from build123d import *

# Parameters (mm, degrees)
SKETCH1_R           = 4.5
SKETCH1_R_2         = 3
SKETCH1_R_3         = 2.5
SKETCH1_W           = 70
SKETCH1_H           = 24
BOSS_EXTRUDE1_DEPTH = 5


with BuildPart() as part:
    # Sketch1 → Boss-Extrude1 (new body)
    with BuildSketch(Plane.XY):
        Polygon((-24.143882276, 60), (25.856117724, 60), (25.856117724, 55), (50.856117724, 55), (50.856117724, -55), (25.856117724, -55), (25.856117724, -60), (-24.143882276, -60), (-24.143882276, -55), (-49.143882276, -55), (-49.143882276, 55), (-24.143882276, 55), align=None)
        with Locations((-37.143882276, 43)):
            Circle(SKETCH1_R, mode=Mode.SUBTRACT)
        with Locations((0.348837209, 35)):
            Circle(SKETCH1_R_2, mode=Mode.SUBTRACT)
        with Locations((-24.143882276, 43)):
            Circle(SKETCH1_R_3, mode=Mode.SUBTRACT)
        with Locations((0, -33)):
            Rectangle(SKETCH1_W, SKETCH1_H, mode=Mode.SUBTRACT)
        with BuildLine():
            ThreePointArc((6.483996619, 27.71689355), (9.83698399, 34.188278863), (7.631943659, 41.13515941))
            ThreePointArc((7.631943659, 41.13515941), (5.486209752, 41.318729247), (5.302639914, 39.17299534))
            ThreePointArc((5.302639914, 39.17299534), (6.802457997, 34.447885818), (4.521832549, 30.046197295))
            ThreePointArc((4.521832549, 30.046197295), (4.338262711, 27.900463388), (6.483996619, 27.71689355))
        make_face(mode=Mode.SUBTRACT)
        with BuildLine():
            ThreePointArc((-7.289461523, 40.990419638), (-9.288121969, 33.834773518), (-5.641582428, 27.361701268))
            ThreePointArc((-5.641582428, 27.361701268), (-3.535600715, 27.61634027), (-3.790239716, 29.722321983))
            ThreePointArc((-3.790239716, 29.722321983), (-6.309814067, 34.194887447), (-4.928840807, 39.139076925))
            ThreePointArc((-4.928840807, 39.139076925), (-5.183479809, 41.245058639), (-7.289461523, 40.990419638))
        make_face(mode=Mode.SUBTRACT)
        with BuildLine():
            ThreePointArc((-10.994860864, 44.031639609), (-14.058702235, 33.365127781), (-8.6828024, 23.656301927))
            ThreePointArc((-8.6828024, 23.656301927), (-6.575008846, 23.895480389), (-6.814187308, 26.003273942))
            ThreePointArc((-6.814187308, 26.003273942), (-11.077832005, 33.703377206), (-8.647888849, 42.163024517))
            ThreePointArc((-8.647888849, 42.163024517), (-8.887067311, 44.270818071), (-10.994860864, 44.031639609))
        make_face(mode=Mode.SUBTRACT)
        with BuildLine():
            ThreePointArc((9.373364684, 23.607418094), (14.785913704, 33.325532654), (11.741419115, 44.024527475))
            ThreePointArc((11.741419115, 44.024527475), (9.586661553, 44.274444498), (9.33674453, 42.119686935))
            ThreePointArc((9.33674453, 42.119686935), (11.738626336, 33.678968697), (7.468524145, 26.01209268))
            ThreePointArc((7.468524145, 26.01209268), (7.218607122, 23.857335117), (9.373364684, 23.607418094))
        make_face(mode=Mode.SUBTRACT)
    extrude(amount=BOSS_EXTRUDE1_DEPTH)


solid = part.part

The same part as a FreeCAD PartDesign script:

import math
import FreeCAD as App
import Part
import Sketcher
from FreeCAD import Vector

doc = App.newDocument("Part")
params = doc.addObject("Spreadsheet::Sheet", "Params")
for row, (alias, value) in enumerate([
    ("sketch1_diameter", "6 mm"),
    ("sketch1_diameter2", "5 mm"),
    ("sketch1_diameter3", "9 mm"),
    ("sketch1_radius", "1.5 mm"),
    ("sketch1_radius2", "11.5 mm"),
    ("pad1_length", "5 mm"),
], start=1):
    params.set(f"A{row}", alias)
    params.set(f"B{row}", "=" + value)
    params.setAlias(f"B{row}", alias)

body = doc.addObject("PartDesign::Body", "Body")

# Sketch on XY plane
sketch1 = body.newObject("Sketcher::SketchObject", "Sketch")
sketch1.AttachmentSupport = (doc.getObject("XY_Plane"), [""])
sketch1.MapMode = "FlatFace"
sketch1.addGeometry(Part.LineSegment(Vector(25.856118, 60, 0), Vector(-24.143882, 60, 0)), False)
sketch1.addGeometry(Part.LineSegment(Vector(-24.143882, 60, 0), Vector(-24.143882, 55, 0)), False)
sketch1.addGeometry(Part.LineSegment(Vector(-24.143882, 55, 0), Vector(-49.143882, 55, 0)), False)
sketch1.addGeometry(Part.LineSegment(Vector(-49.143882, 55, 0), Vector(-49.143882, -55, 0)), False)
sketch1.addGeometry(Part.LineSegment(Vector(-49.143882, -55, 0), Vector(-24.143882, -55, 0)), False)
sketch1.addGeometry(Part.LineSegment(Vector(-24.143882, -55, 0), Vector(-24.143882, -60, 0)), False)
sketch1.addGeometry(Part.LineSegment(Vector(-24.143882, -60, 0), Vector(25.856118, -60, 0)), False)
sketch1.addGeometry(Part.LineSegment(Vector(25.856118, -60, 0), Vector(25.856118, -55, 0)), False)
sketch1.addGeometry(Part.LineSegment(Vector(25.856118, -55, 0), Vector(50.856118, -55, 0)), False)
sketch1.addGeometry(Part.LineSegment(Vector(50.856118, -55, 0), Vector(50.856118, 55, 0)), False)
sketch1.addGeometry(Part.LineSegment(Vector(50.856118, 55, 0), Vector(25.856118, 55, 0)), False)
sketch1.addGeometry(Part.LineSegment(Vector(25.856118, 55, 0), Vector(25.856118, 60, 0)), False)
sketch1.addGeometry(Part.LineSegment(Vector(-35, -45, 0), Vector(-35, -21, 0)), False)
sketch1.addGeometry(Part.LineSegment(Vector(-35, -21, 0), Vector(35, -21, 0)), False)
sketch1.addGeometry(Part.LineSegment(Vector(35, -21, 0), Vector(35, -45, 0)), False)
sketch1.addGeometry(Part.LineSegment(Vector(35, -45, 0), Vector(-35, -45, 0)), False)
sketch1.addGeometry(Part.ArcOfCircle(Part.Circle(Vector(8.420944, 24.809755, 0), Vector(0, 0, 1), 1.533858), math.radians(128.384177), math.radians(308.384177)), False)
sketch1.addGeometry(Part.ArcOfCircle(Part.Circle(Vector(0.348837, 35, 0), Vector(0, 0, 1), 11.466142), math.radians(-51.615823), math.radians(38.384177)), False)
sketch1.addGeometry(Part.ArcOfCircle(Part.Circle(Vector(10.539082, 43.072107, 0), Vector(0, 0, 1), 1.533858), math.radians(38.384177), math.radians(218.384177)), False)
sketch1.addGeometry(Part.ArcOfCircle(Part.Circle(Vector(0.348837, 35, 0), Vector(0, 0, 1), 14.533858), math.radians(-51.615823), math.radians(38.384177)), False)
sketch1.addGeometry(Part.ArcOfCircle(Part.Circle(Vector(5.502915, 28.881545, 0), Vector(0, 0, 1), 1.522805), math.radians(130.110191), math.radians(310.110191)), False)
sketch1.addGeometry(Part.ArcOfCircle(Part.Circle(Vector(0.348837, 35, 0), Vector(0, 0, 1), 6.477195), math.radians(-49.889809), math.radians(40.110191)), False)
sketch1.addGeometry(Part.ArcOfCircle(Part.Circle(Vector(6.467292, 40.154077, 0), Vector(0, 0, 1), 1.522805), math.radians(40.110191), math.radians(220.110191)), False)
sketch1.addGeometry(Part.ArcOfCircle(Part.Circle(Vector(0.348837, 35, 0), Vector(0, 0, 1), 9.522805), math.radians(-49.889809), math.radians(40.110191)), False)
sketch1.addGeometry(Part.Circle(Vector(0.348837, 35, 0), Vector(0, 0, 1), 3), False)
sketch1.addGeometry(Part.ArcOfCircle(Part.Circle(Vector(-6.109151, 40.064748, 0), Vector(0, 0, 1), 1.5), math.radians(-38.105706), math.radians(141.894294)), False)
sketch1.addGeometry(Part.ArcOfCircle(Part.Circle(Vector(0.348837, 35, 0), Vector(0, 0, 1), 6.707149), math.radians(141.894294), math.radians(231.894294)), False)
sketch1.addGeometry(Part.ArcOfCircle(Part.Circle(Vector(-4.715911, 28.542012, 0), Vector(0, 0, 1), 1.5), math.radians(-128.105706), math.radians(51.894294)), False)
sketch1.addGeometry(Part.ArcOfCircle(Part.Circle(Vector(0.348837, 35, 0), Vector(0, 0, 1), 9.707149), math.radians(141.894294), math.radians(231.894294)), False)
sketch1.addGeometry(Part.ArcOfCircle(Part.Circle(Vector(-9.821375, 43.097332, 0), Vector(0, 0, 1), 1.5), math.radians(-38.526146), math.radians(141.473854)), False)
sketch1.addGeometry(Part.ArcOfCircle(Part.Circle(Vector(0.348837, 35, 0), Vector(0, 0, 1), 11.5), math.radians(141.473854), math.radians(231.473854)), False)
sketch1.addGeometry(Part.ArcOfCircle(Part.Circle(Vector(-7.748495, 24.829788, 0), Vector(0, 0, 1), 1.5), math.radians(-128.526146), math.radians(51.473854)), False)
sketch1.addGeometry(Part.ArcOfCircle(Part.Circle(Vector(0.348837, 35, 0), Vector(0, 0, 1), 14.5), math.radians(141.473854), math.radians(231.473854)), False)
sketch1.addGeometry(Part.Circle(Vector(-24.143882, 43, 0), Vector(0, 0, 1), 2.5), False)
sketch1.addGeometry(Part.Circle(Vector(-37.143882, 43, 0), Vector(0, 0, 1), 4.5), False)
sketch1.addConstraint(Sketcher.Constraint("Coincident", 0, 2, 1, 1))
sketch1.addConstraint(Sketcher.Constraint("Coincident", 1, 2, 2, 1))
sketch1.addConstraint(Sketcher.Constraint("Coincident", 2, 2, 3, 1))
sketch1.addConstraint(Sketcher.Constraint("Coincident", 3, 2, 4, 1))
sketch1.addConstraint(Sketcher.Constraint("Coincident", 4, 2, 5, 1))
sketch1.addConstraint(Sketcher.Constraint("Coincident", 5, 2, 6, 1))
sketch1.addConstraint(Sketcher.Constraint("Coincident", 6, 2, 7, 1))
sketch1.addConstraint(Sketcher.Constraint("Coincident", 7, 2, 8, 1))
sketch1.addConstraint(Sketcher.Constraint("Coincident", 8, 2, 9, 1))
sketch1.addConstraint(Sketcher.Constraint("Coincident", 9, 2, 10, 1))
sketch1.addConstraint(Sketcher.Constraint("Coincident", 10, 2, 11, 1))
sketch1.addConstraint(Sketcher.Constraint("Coincident", 11, 2, 0, 1))
sketch1.addConstraint(Sketcher.Constraint("Coincident", 12, 2, 13, 1))
sketch1.addConstraint(Sketcher.Constraint("Coincident", 13, 2, 14, 1))
sketch1.addConstraint(Sketcher.Constraint("Coincident", 14, 2, 15, 1))
sketch1.addConstraint(Sketcher.Constraint("Coincident", 15, 2, 12, 1))
sketch1.addConstraint(Sketcher.Constraint("Tangent", 16, 1, 17, 1))
sketch1.addConstraint(Sketcher.Constraint("Tangent", 17, 2, 18, 2))
sketch1.addConstraint(Sketcher.Constraint("Tangent", 18, 1, 19, 2))
sketch1.addConstraint(Sketcher.Constraint("Tangent", 19, 1, 16, 2))
sketch1.addConstraint(Sketcher.Constraint("Tangent", 20, 1, 21, 1))
sketch1.addConstraint(Sketcher.Constraint("Tangent", 21, 2, 22, 2))
sketch1.addConstraint(Sketcher.Constraint("Tangent", 22, 1, 23, 2))
sketch1.addConstraint(Sketcher.Constraint("Tangent", 23, 1, 20, 2))
sketch1.addConstraint(Sketcher.Constraint("Tangent", 25, 1, 26, 1))
sketch1.addConstraint(Sketcher.Constraint("Tangent", 26, 2, 27, 2))
sketch1.addConstraint(Sketcher.Constraint("Tangent", 27, 1, 28, 2))
sketch1.addConstraint(Sketcher.Constraint("Tangent", 28, 1, 25, 2))
sketch1.addConstraint(Sketcher.Constraint("Tangent", 29, 1, 30, 1))
sketch1.addConstraint(Sketcher.Constraint("Tangent", 30, 2, 31, 2))
sketch1.addConstraint(Sketcher.Constraint("Tangent", 31, 1, 32, 2))
sketch1.addConstraint(Sketcher.Constraint("Tangent", 32, 1, 29, 2))
sketch1.addConstraint(Sketcher.Constraint("Horizontal", 0))
sketch1.addConstraint(Sketcher.Constraint("Vertical", 1))
sketch1.addConstraint(Sketcher.Constraint("Horizontal", 2))
sketch1.addConstraint(Sketcher.Constraint("Vertical", 3))
sketch1.addConstraint(Sketcher.Constraint("Horizontal", 4))
sketch1.addConstraint(Sketcher.Constraint("Vertical", 5))
sketch1.addConstraint(Sketcher.Constraint("Horizontal", 6))
sketch1.addConstraint(Sketcher.Constraint("Vertical", 7))
sketch1.addConstraint(Sketcher.Constraint("Horizontal", 8))
sketch1.addConstraint(Sketcher.Constraint("Vertical", 9))
sketch1.addConstraint(Sketcher.Constraint("Horizontal", 10))
sketch1.addConstraint(Sketcher.Constraint("Vertical", 11))
sketch1.addConstraint(Sketcher.Constraint("Vertical", 12))
sketch1.addConstraint(Sketcher.Constraint("Horizontal", 13))
sketch1.addConstraint(Sketcher.Constraint("Vertical", 14))
sketch1.addConstraint(Sketcher.Constraint("Horizontal", 15))
sketch1.addConstraint(Sketcher.Constraint("Coincident", 19, 3, 17, 3))
sketch1.addConstraint(Sketcher.Constraint("Coincident", 21, 3, 17, 3))
sketch1.addConstraint(Sketcher.Constraint("Coincident", 23, 3, 17, 3))
sketch1.addConstraint(Sketcher.Constraint("Coincident", 24, 3, 17, 3))
sketch1.addConstraint(Sketcher.Constraint("Coincident", 26, 3, 17, 3))
sketch1.addConstraint(Sketcher.Constraint("Coincident", 28, 3, 17, 3))
sketch1.addConstraint(Sketcher.Constraint("Coincident", 30, 3, 17, 3))
sketch1.addConstraint(Sketcher.Constraint("Coincident", 32, 3, 17, 3))
sketch1.addConstraint(Sketcher.Constraint("Equal", 27, 29))
sketch1.addConstraint(Sketcher.Constraint("Symmetric", 1, 2, 4, 2, -1))
sketch1.addConstraint(Sketcher.Constraint("Symmetric", 7, 2, 10, 2, -1))
sketch1.addConstraint(Sketcher.Constraint("Horizontal", 33, 3, 34, 3))
sketch1.addConstraint(Sketcher.Constraint("Horizontal", 4, 2, 7, 2))
sketch1.addConstraint(Sketcher.Constraint("Vertical", 33, 3, 0, 2))
sketch1.addConstraint(Sketcher.Constraint("Equal", 4, 8))
sketch1.addConstraint(Sketcher.Constraint("Equal", 1, 5))
sketch1.addConstraint(Sketcher.Constraint("Diameter", 24, 6.0))
sketch1.addConstraint(Sketcher.Constraint("Diameter", 33, 5.0))
sketch1.addConstraint(Sketcher.Constraint("Diameter", 34, 9.0))
sketch1.addConstraint(Sketcher.Constraint("Radius", 25, 1.5))
sketch1.addConstraint(Sketcher.Constraint("Radius", 30, 11.5))
sketch1.addConstraint(Sketcher.Constraint("DistanceX", 0, 2, 0, 1, 50.0))
sketch1.addConstraint(Sketcher.Constraint("DistanceX", 2, 2, 2, 1, 25.0))
sketch1.addConstraint(Sketcher.Constraint("DistanceX", 13, 1, 13, 2, 70.0))
sketch1.addConstraint(Sketcher.Constraint("DistanceY", 1, 2, 1, 1, 5.0))
sketch1.addConstraint(Sketcher.Constraint("DistanceY", 3, 2, 3, 1, 110.0))
sketch1.addConstraint(Sketcher.Constraint("DistanceY", 12, 1, 12, 2, 24.0))
sketch1.addConstraint(Sketcher.Constraint("DistanceY", -1, 1, 17, 3, 35.0))
sketch1.addConstraint(Sketcher.Constraint("DistanceY", -1, 1, 33, 3, 43.0))
sketch1.addConstraint(Sketcher.Constraint("DistanceX", 12, 2, -1, 1, 35.0))
sketch1.addConstraint(Sketcher.Constraint("DistanceY", 12, 2, -1, 1, 21.0))
sketch1.addConstraint(Sketcher.Constraint("DistanceX", 34, 3, 33, 3, 13.0))
sketch1.addConstraint(Sketcher.Constraint("Radius", 26, 6.707149))
sketch1.addConstraint(Sketcher.Constraint("Radius", 16, 1.533858))
sketch1.addConstraint(Sketcher.Constraint("Radius", 17, 11.466142))
sketch1.addConstraint(Sketcher.Constraint("Radius", 20, 1.522805))
sketch1.addConstraint(Sketcher.Constraint("Radius", 21, 6.477195))
sketch1.addConstraint(Sketcher.Constraint("DistanceY", -1, 1, 27, 1, 27.361701))
sketch1.addConstraint(Sketcher.Constraint("DistanceY", -1, 1, 31, 1, 23.656302))
sketch1.addConstraint(Sketcher.Constraint("DistanceX", 22, 1, 17, 2, 1.704801))
sketch1.addConstraint(Sketcher.Constraint("DistanceY", 16, 1, 23, 1, 1.704801))
sketch1.addConstraint(Sketcher.Constraint("DistanceX", 28, 1, 19, 3, 7.638299))
sketch1.addConstraint(Sketcher.Constraint("DistanceX", 32, 1, 28, 1, 3.705399))
sketch1.addConstraint(Sketcher.Constraint("DistanceX", -1, 1, 18, 3, 10.539082))
sketch1.addConstraint(Sketcher.Constraint("DistanceX", -1, 1, 22, 3, 6.467292))
sketch1.addConstraint(Sketcher.Constraint("DistanceY", -1, 1, 19, 1, 23.607418))
sketch1.addConstraint(Sketcher.Constraint("DistanceX", 33, 3, 25, 3, 18.034731))
sketch1.setExpression("Constraints[64]", "Params.sketch1_diameter")
sketch1.setExpression("Constraints[65]", "Params.sketch1_diameter2")
sketch1.setExpression("Constraints[66]", "Params.sketch1_diameter3")
sketch1.setExpression("Constraints[67]", "Params.sketch1_radius")
sketch1.setExpression("Constraints[68]", "Params.sketch1_radius2")
pad1 = body.newObject("PartDesign::Pad", "Pad")
pad1.Profile = sketch1
pad1.setExpression("Length", "Params.pad1_length")

doc.recompute()
